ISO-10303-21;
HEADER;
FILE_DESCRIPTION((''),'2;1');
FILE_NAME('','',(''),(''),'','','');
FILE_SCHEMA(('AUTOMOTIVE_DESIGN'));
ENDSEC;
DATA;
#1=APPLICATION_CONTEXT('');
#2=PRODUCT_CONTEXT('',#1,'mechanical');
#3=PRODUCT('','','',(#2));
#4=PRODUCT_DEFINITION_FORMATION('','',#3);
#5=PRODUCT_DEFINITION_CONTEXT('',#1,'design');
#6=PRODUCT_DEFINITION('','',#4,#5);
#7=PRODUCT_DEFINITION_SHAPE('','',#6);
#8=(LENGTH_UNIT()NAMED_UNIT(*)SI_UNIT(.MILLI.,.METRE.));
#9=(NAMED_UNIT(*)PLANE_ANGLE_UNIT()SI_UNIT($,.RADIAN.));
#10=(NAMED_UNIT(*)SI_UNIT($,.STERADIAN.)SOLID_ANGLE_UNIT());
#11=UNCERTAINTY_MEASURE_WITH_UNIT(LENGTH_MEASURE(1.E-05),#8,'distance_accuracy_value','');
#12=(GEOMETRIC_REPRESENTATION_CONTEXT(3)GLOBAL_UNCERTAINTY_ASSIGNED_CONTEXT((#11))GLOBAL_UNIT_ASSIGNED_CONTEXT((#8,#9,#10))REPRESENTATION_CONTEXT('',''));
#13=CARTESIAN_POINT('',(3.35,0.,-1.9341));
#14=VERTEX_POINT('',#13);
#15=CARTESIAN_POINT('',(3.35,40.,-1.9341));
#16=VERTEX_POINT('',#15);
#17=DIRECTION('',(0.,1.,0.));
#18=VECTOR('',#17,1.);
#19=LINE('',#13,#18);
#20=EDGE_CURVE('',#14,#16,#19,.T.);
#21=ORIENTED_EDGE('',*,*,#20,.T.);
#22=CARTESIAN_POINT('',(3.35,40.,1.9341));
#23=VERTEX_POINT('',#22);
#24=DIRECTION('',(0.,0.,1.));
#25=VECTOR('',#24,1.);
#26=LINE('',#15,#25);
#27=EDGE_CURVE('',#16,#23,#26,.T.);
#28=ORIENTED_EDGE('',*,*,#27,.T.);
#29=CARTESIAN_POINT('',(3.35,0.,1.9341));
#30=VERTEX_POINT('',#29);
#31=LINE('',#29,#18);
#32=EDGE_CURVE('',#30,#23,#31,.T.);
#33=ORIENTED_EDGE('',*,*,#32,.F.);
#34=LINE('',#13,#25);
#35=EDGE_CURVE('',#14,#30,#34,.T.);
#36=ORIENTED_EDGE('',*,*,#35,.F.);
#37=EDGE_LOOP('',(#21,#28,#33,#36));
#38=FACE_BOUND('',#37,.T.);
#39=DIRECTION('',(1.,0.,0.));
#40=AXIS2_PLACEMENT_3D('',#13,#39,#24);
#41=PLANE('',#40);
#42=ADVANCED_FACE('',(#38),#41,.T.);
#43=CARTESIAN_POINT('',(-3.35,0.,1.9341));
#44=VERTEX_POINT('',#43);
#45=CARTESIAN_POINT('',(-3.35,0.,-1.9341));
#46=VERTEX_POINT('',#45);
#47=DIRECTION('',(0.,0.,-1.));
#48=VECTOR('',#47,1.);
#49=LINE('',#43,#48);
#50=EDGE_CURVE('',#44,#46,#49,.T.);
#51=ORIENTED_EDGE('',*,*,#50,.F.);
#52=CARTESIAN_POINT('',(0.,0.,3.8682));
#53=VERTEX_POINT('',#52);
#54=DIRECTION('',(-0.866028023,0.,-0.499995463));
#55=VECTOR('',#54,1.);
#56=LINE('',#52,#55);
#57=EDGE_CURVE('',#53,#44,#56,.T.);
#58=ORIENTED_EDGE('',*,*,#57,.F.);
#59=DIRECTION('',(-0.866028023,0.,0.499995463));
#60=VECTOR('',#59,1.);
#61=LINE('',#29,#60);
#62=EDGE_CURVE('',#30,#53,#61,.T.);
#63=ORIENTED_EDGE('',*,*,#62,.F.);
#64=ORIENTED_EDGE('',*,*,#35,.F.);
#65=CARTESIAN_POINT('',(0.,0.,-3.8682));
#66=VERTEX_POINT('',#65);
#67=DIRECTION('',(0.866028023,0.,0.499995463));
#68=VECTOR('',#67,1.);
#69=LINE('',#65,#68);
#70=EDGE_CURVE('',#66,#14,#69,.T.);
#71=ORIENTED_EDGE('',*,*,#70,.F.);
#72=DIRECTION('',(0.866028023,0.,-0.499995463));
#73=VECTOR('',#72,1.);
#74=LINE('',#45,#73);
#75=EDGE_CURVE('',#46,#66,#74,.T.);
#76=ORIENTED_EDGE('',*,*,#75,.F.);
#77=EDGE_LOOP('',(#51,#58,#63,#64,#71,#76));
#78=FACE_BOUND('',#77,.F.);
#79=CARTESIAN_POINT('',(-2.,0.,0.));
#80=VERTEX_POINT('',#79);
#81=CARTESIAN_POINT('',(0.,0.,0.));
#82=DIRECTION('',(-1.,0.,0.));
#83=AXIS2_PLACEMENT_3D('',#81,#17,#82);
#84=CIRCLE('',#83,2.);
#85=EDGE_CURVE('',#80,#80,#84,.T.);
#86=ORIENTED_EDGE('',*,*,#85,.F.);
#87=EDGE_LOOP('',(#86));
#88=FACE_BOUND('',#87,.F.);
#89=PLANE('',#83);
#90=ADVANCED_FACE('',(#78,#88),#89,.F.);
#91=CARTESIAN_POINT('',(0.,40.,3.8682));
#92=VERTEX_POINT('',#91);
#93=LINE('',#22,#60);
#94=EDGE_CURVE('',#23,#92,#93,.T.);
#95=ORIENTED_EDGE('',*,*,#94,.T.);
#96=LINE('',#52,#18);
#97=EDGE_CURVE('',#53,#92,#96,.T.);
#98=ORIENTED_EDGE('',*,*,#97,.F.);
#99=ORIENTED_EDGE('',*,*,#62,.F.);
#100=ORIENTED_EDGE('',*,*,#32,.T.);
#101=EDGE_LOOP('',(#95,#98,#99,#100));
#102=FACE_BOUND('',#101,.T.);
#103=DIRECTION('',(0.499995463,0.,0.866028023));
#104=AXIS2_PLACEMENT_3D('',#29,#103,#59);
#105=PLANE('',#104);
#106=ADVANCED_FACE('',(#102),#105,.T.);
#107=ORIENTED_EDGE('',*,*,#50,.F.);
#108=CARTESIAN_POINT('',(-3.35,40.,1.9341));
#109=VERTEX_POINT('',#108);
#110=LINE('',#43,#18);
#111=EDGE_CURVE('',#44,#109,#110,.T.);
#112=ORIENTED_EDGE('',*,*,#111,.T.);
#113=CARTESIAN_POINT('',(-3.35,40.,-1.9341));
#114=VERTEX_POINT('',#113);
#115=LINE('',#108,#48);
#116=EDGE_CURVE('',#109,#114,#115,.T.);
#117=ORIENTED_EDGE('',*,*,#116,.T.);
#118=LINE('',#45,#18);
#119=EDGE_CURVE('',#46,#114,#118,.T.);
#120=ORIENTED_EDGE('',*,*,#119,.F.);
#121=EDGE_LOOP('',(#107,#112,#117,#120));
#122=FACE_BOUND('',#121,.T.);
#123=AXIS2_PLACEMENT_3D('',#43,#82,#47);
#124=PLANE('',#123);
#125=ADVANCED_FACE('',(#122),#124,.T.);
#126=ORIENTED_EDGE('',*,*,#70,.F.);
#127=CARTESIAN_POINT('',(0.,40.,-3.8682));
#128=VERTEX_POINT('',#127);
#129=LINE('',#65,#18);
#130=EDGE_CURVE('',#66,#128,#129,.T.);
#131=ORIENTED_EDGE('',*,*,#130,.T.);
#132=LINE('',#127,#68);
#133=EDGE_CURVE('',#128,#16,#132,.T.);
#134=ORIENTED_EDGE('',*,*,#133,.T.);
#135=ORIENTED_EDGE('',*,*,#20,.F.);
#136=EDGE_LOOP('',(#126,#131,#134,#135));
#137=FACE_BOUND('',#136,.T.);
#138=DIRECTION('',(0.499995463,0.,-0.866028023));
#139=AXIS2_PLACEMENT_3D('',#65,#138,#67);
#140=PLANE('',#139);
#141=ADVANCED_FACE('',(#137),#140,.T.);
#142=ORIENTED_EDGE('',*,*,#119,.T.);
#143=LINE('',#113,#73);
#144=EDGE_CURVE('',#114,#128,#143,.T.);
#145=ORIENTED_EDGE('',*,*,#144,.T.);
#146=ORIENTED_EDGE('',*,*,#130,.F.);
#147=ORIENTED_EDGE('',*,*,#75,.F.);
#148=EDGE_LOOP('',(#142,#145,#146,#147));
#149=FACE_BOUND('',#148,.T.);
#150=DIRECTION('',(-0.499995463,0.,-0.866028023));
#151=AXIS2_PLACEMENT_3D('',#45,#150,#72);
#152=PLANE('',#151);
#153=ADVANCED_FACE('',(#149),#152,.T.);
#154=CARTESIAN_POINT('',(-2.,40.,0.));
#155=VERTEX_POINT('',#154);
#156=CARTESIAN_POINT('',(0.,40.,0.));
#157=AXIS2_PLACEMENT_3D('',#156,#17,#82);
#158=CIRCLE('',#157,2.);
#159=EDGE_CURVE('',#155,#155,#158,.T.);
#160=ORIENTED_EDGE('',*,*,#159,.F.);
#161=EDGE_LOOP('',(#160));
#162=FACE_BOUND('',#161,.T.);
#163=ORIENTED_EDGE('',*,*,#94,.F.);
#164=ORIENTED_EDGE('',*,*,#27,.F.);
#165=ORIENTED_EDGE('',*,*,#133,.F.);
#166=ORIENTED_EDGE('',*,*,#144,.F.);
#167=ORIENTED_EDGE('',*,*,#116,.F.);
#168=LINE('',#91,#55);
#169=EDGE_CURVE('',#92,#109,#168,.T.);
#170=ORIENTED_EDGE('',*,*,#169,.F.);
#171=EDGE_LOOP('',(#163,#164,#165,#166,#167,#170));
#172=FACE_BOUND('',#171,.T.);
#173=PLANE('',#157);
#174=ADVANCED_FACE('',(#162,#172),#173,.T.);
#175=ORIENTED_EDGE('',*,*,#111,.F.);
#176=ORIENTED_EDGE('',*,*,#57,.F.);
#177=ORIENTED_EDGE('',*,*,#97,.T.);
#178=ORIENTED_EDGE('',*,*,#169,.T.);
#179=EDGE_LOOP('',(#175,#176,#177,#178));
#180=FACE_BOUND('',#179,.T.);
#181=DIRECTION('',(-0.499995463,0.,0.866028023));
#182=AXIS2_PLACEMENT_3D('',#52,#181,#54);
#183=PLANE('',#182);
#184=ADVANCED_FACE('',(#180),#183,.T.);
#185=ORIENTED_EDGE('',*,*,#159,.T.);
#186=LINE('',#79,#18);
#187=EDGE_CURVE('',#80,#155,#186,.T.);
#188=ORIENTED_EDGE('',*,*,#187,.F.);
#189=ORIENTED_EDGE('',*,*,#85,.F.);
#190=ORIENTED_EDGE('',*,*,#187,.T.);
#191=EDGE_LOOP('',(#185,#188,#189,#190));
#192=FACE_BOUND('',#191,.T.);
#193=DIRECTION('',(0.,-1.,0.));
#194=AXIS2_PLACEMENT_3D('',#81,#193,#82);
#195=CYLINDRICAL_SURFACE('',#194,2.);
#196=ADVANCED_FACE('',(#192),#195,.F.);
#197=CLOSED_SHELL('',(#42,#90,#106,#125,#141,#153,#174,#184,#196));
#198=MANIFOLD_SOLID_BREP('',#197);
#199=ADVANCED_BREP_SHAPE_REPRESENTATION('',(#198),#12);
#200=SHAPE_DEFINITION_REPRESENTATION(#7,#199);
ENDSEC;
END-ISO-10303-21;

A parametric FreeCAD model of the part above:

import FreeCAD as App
import Part
import Sketcher

V = App.Vector
Q = App.Units.Quantity

doc = App.newDocument("Part")
params = doc.addObject("Spreadsheet::Sheet", "Params")
for row, (alias, value) in enumerate([
    ("sketch1_diameter", "4 mm"),
    ("pad1_length", "40 mm"),
], start=1):
    params.set(f"A{row}", alias)
    params.set(f"B{row}", "=" + value)
    params.setAlias(f"B{row}", alias)

body = doc.addObject("PartDesign::Body", "Body")

sketch1 = body.newObject("Sketcher::SketchObject", "Sketch")
sketch1.AttachmentSupport = (doc.getObject("XZ_Plane"), [""])
sketch1.MapMode = "FlatFace"
sketch1.addGeometry(Part.LineSegment(V(-3.4, -1.9, 0), V(-3.4, 1.9, 0)), False)
sketch1.addGeometry(Part.LineSegment(V(-3.4, 1.9, 0), V(0, 3.9, 0)), False)
sketch1.addGeometry(Part.LineSegment(V(0, 3.9, 0), V(3.4, 1.9, 0)), False)
sketch1.addGeometry(Part.LineSegment(V(3.4, 1.9, 0), V(3.4, -1.9, 0)), False)
sketch1.addGeometry(Part.LineSegment(V(3.4, -1.9, 0), V(0, -3.9, 0)), False)
sketch1.addGeometry(Part.LineSegment(V(0, -3.9, 0), V(-3.4, -1.9, 0)), False)
sketch1.addGeometry(Part.Circle(V(0, 0, 0), V(0, 0, 1), 2), False)
sketch1.addConstraint(Sketcher.Constraint("Coincident", 0, 2, 1, 1))
sketch1.addConstraint(Sketcher.Constraint("Coincident", 1, 2, 2, 1))
sketch1.addConstraint(Sketcher.Constraint("Coincident", 2, 2, 3, 1))
sketch1.addConstraint(Sketcher.Constraint("Coincident", 3, 2, 4, 1))
sketch1.addConstraint(Sketcher.Constraint("Coincident", 4, 2, 5, 1))
sketch1.addConstraint(Sketcher.Constraint("Coincident", 5, 2, 0, 1))
sketch1.addConstraint(Sketcher.Constraint("Vertical", 0))
sketch1.addConstraint(Sketcher.Constraint("Vertical", 3))
sketch1.addConstraint(Sketcher.Constraint("Coincident", 6, 3, -1, 1))
sketch1.addConstraint(Sketcher.Constraint("Symmetric", 0, 2, 3, 2, -1, 1))
sketch1.addConstraint(Sketcher.Constraint("Symmetric", 1, 2, 4, 2, -1, 1))
sketch1.addConstraint(Sketcher.Constraint("PointOnObject", 1, 2, -2))
sketch1.addConstraint(Sketcher.Constraint("Parallel", 2, 5))
sketch1.addConstraint(Sketcher.Constraint("Horizontal", 0, 2, 2, 2))
sketch1.addConstraint(Sketcher.Constraint("Diameter", 6, 4.0))
sketch1.addConstraint(Sketcher.Constraint("DistanceX", 0, 2, 2, 2, 6.7))
sketch1.addConstraint(Sketcher.Constraint("Angle", 1, Q("29.9997 deg")))
sketch1.addConstraint(Sketcher.Constraint("DistanceY", 0, 1, 0, 2, 3.8682))
sketch1.setExpression("Constraints[14]", "Params.sketch1_diameter")
pad1 = body.newObject("PartDesign::Pad", "Pad")
pad1.Profile = sketch1
pad1.setExpression("Length", "Params.pad1_length")
pad1.Reversed = True

doc.recompute()
